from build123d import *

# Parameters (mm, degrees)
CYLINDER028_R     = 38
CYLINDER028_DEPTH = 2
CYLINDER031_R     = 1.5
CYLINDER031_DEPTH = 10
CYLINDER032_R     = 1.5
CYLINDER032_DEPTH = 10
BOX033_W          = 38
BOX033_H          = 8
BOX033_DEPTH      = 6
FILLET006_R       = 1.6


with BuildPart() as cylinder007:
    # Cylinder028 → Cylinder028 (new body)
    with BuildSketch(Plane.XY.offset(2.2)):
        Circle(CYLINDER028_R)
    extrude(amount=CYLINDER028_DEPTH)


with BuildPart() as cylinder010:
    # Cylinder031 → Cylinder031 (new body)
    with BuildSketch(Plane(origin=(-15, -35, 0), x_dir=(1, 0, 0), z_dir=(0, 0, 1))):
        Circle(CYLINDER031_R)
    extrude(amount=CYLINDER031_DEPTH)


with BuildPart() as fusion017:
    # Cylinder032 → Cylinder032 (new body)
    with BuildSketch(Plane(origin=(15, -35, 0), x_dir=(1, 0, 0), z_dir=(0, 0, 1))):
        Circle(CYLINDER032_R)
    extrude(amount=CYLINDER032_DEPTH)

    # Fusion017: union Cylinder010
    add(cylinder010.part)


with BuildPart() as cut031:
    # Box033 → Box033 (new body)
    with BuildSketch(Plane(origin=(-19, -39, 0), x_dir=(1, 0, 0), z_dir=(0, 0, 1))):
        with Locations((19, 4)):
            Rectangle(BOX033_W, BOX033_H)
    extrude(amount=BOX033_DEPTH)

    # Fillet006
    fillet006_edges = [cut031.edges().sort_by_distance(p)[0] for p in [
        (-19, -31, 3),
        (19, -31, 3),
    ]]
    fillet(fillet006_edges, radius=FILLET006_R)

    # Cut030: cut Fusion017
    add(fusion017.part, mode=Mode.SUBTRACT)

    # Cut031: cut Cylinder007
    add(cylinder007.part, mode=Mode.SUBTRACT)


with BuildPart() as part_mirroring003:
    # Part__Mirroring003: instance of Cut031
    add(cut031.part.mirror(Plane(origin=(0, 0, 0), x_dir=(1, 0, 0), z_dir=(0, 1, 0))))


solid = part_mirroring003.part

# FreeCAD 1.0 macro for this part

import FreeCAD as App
import Part
import Sketcher

V = App.Vector


def edges_at(feature, points):
    """Names of the edges that pass closest to the given points."""
    edges = feature.Shape.Edges
    near = lambda p: min(range(len(edges)), key=lambda i: edges[i].distToShape(Part.Vertex(*p))[0])
    return sorted({f"Edge{near(p) + 1}" for p in points})

doc = App.newDocument("Part")
body = doc.addObject("PartDesign::Body", "Body")

sketch1 = body.newObject("Sketcher::SketchObject", "Sketch")
sketch1.AttachmentSupport = (doc.getObject("XY_Plane"), [""])
sketch1.MapMode = "FlatFace"
sketch1.AttachmentOffset = App.Placement(V(0, 0, 2.2), App.Rotation())
sketch1.addGeometry(Part.Circle(V(0, 0, 0), V(0, 0, 1), 38), False)
sketch1.addConstraint(Sketcher.Constraint("Coincident", 0, 3, -1, 1))
sketch1.addConstraint(Sketcher.Constraint("Diameter", 0, 76.0))
pad1 = body.newObject("PartDesign::Pad", "Pad")
pad1.Profile = sketch1
pad1.Length = 2
body2 = doc.addObject("PartDesign::Body", "Body001")

sketch2 = body2.newObject("Sketcher::SketchObject", "Sketch001")
sketch2.AttachmentSupport = (doc.getObject("XY_Plane001"), [""])
sketch2.MapMode = "FlatFace"
sketch2.addGeometry(Part.Circle(V(-15, -35, 0), V(0, 0, 1), 1.5), False)
sketch2.addConstraint(Sketcher.Constraint("Diameter", 0, 3.0))
sketch2.addConstraint(Sketcher.Constraint("DistanceX", 0, 3, -1, 1, 15.0))
sketch2.addConstraint(Sketcher.Constraint("DistanceY", 0, 3, -1, 1, 35.0))
pad2 = body2.newObject("PartDesign::Pad", "Pad001")
pad2.Profile = sketch2
pad2.Length = 10
body3 = doc.addObject("PartDesign::Body", "Body002")
body3.AllowCompound = True

sketch3 = body3.newObject("Sketcher::SketchObject", "Sketch002")
sketch3.AttachmentSupport = (doc.getObject("XY_Plane002"), [""])
sketch3.MapMode = "FlatFace"
sketch3.addGeometry(Part.Circle(V(15, -35, 0), V(0, 0, 1), 1.5), False)
sketch3.addConstraint(Sketcher.Constraint("Diameter", 0, 3.0))
sketch3.addConstraint(Sketcher.Constraint("DistanceX", -1, 1, 0, 3, 15.0))
sketch3.addConstraint(Sketcher.Constraint("DistanceY", 0, 3, -1, 1, 35.0))
pad3 = body3.newObject("PartDesign::Pad", "Pad002")
pad3.Profile = sketch3
pad3.Length = 10
doc.recompute()

boolean = body3.newObject("PartDesign::Boolean", "Boolean")
boolean.Type = "Fuse"
boolean.addObjects([body2])
body4 = doc.addObject("PartDesign::Body", "Body003")

sketch4 = body4.newObject("Sketcher::SketchObject", "Sketch003")
sketch4.AttachmentSupport = (doc.getObject("XY_Plane003"), [""])
sketch4.MapMode = "FlatFace"
sketch4.addGeometry(Part.LineSegment(V(-19, -31, 0), V(-19, -39, 0)), False)
sketch4.addGeometry(Part.LineSegment(V(-19, -39, 0), V(19, -39, 0)), False)
sketch4.addGeometry(Part.LineSegment(V(19, -39, 0), V(19, -31, 0)), False)
sketch4.addGeometry(Part.LineSegment(V(19, -31, 0), V(-19, -31, 0)), False)
sketch4.addConstraint(Sketcher.Constraint("Coincident", 0, 2, 1, 1))
sketch4.addConstraint(Sketcher.Constraint("Coincident", 1, 2, 2, 1))
sketch4.addConstraint(Sketcher.Constraint("Coincident", 2, 2, 3, 1))
sketch4.addConstraint(Sketcher.Constraint("Coincident", 3, 2, 0, 1))
sketch4.addConstraint(Sketcher.Constraint("Vertical", 0))
sketch4.addConstraint(Sketcher.Constraint("Horizontal", 1))
sketch4.addConstraint(Sketcher.Constraint("Vertical", 2))
sketch4.addConstraint(Sketcher.Constraint("Horizontal", 3))
sketch4.addConstraint(Sketcher.Constraint("DistanceX", 1, 1, 1, 2, 38.0))
sketch4.addConstraint(Sketcher.Constraint("DistanceY", 0, 2, 0, 1, 8.0))
sketch4.addConstraint(Sketcher.Constraint("DistanceX", 0, 2, -1, 1, 19.0))
sketch4.addConstraint(Sketcher.Constraint("DistanceY", 0, 2, -1, 1, 39.0))
pad4 = body4.newObject("PartDesign::Pad", "Pad003")
pad4.Profile = sketch4
pad4.Length = 6
doc.recompute()

fillet = body4.newObject("PartDesign::Fillet", "Fillet")
fillet.Base = (pad4, edges_at(pad4, [(-19, -31, 3), (19, -31, 3)]))
fillet.Radius = 1.6
doc.recompute()

boolean2 = body4.newObject("PartDesign::Boolean", "Boolean001")
boolean2.Type = "Cut"
boolean2.addObjects([body3])
doc.recompute()

boolean3 = body4.newObject("PartDesign::Boolean", "Boolean002")
boolean3.Type = "Cut"
boolean3.addObjects([body])
body5 = doc.addObject("PartDesign::Body", "Body004")
doc.recompute()

mirroring = doc.addObject("Part::Mirroring", "Mirroring")
mirroring.Source = body4
mirroring.Base = V(0, 0, 0)
mirroring.Normal = V(0, 1, 0)
body5.BaseFeature = mirroring
doc.recompute()
body4.Visibility = False
mirroring.Visibility = False

doc.recompute()
